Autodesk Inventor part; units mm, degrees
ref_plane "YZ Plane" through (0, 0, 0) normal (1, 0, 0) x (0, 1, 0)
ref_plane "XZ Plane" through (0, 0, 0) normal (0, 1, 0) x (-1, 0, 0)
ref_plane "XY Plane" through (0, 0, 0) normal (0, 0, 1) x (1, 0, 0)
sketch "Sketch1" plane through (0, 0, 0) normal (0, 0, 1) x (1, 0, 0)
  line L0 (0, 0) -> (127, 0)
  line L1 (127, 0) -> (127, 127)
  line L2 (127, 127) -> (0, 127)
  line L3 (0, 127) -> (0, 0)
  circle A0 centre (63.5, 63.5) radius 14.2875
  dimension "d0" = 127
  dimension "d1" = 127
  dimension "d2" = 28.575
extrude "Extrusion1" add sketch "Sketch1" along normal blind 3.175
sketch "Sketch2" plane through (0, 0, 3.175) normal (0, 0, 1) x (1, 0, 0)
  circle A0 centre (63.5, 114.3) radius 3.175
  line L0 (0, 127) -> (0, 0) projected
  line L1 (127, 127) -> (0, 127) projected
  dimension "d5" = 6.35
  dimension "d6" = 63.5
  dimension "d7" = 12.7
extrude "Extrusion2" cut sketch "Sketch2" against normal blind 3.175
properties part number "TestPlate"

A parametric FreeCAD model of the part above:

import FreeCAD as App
import Part
import Sketcher

V = App.Vector
Q = App.Units.Quantity

doc = App.newDocument("Part")
params = doc.addObject("Spreadsheet::Sheet", "Params")
for row, (alias, value) in enumerate([
    ("sketch1_width", "5 in"),
    ("sketch1_diameter", "1.125 in"),
    ("pad1_length", "0.125 in"),
    ("sketch2_diameter", "0.25 in"),
    ("pocket1_length", "0.125 in"),
], start=1):
    params.set(f"A{row}", alias)
    params.set(f"B{row}", "=" + value)
    params.setAlias(f"B{row}", alias)

body = doc.addObject("PartDesign::Body", "Body")

# Sketch on XY plane
sketch1 = body.newObject("Sketcher::SketchObject", "Sketch")
sketch1.AttachmentSupport = (doc.getObject("XY_Plane"), [""])
sketch1.MapMode = "FlatFace"
sketch1.addGeometry([
    Part.LineSegment(V(0, 127, 0), V(0, 0, 0)),  # 0
    Part.LineSegment(V(0, 0, 0), V(127, 0, 0)),  # 1
    Part.LineSegment(V(127, 0, 0), V(127, 127, 0)),  # 2
    Part.LineSegment(V(127, 127, 0), V(0, 127, 0)),  # 3
    Part.Circle(V(64, 64, 0), V(0, 0, 1), 14),  # 4
], False)
sketch1.addConstraint([
    Sketcher.Constraint("Coincident", 0, 2, 1, 1),
    Sketcher.Constraint("Coincident", 1, 2, 2, 1),
    Sketcher.Constraint("Coincident", 2, 2, 3, 1),
    Sketcher.Constraint("Coincident", 3, 2, 0, 1),
    Sketcher.Constraint("Vertical", 0),
    Sketcher.Constraint("Horizontal", 1),
    Sketcher.Constraint("Vertical", 2),
    Sketcher.Constraint("Horizontal", 3),
    Sketcher.Constraint("Coincident", 0, 2, -1, 1),
    Sketcher.Constraint("Equal", 3, 0),
    Sketcher.Constraint("DistanceX", 1, 1, 1, 2, Q("5 in")),
    Sketcher.Constraint("Diameter", 4, Q("1.125 in")),
    Sketcher.Constraint("DistanceX", -1, 1, 4, 3, Q("2.5 in")),
    Sketcher.Constraint("DistanceY", -1, 1, 4, 3, Q("2.5 in")),
])
sketch1.setExpression("Constraints[10]", "Params.sketch1_width")
sketch1.setExpression("Constraints[11]", "Params.sketch1_diameter")
pad1 = body.newObject("PartDesign::Pad", "Pad")
pad1.Profile = sketch1
pad1.setExpression("Length", "Params.pad1_length")

# Sketch on XY plane
sketch2 = body.newObject("Sketcher::SketchObject", "Sketch001")
sketch2.AttachmentSupport = (doc.getObject("XY_Plane"), [""])
sketch2.MapMode = "FlatFace"
sketch2.AttachmentOffset = App.Placement(V(0, 0, 0.125 * 25.4), App.Rotation())
sketch2.addGeometry(Part.Circle(V(63.5, 114.3, 0), V(0, 0, 1), 3.2), False)
sketch2.addConstraint([
    Sketcher.Constraint("Diameter", 0, Q("0.25 in")),
    Sketcher.Constraint("DistanceX", -1, 1, 0, 3, Q("2.5 in")),
    Sketcher.Constraint("DistanceY", -1, 1, 0, 3, Q("4.5 in")),
])
sketch2.setExpression("Constraints[0]", "Params.sketch2_diameter")
pocket1 = body.newObject("PartDesign::Pocket", "Pocket")
pocket1.Profile = sketch2
pocket1.setExpression("Length", "Params.pocket1_length")

doc.recompute()
